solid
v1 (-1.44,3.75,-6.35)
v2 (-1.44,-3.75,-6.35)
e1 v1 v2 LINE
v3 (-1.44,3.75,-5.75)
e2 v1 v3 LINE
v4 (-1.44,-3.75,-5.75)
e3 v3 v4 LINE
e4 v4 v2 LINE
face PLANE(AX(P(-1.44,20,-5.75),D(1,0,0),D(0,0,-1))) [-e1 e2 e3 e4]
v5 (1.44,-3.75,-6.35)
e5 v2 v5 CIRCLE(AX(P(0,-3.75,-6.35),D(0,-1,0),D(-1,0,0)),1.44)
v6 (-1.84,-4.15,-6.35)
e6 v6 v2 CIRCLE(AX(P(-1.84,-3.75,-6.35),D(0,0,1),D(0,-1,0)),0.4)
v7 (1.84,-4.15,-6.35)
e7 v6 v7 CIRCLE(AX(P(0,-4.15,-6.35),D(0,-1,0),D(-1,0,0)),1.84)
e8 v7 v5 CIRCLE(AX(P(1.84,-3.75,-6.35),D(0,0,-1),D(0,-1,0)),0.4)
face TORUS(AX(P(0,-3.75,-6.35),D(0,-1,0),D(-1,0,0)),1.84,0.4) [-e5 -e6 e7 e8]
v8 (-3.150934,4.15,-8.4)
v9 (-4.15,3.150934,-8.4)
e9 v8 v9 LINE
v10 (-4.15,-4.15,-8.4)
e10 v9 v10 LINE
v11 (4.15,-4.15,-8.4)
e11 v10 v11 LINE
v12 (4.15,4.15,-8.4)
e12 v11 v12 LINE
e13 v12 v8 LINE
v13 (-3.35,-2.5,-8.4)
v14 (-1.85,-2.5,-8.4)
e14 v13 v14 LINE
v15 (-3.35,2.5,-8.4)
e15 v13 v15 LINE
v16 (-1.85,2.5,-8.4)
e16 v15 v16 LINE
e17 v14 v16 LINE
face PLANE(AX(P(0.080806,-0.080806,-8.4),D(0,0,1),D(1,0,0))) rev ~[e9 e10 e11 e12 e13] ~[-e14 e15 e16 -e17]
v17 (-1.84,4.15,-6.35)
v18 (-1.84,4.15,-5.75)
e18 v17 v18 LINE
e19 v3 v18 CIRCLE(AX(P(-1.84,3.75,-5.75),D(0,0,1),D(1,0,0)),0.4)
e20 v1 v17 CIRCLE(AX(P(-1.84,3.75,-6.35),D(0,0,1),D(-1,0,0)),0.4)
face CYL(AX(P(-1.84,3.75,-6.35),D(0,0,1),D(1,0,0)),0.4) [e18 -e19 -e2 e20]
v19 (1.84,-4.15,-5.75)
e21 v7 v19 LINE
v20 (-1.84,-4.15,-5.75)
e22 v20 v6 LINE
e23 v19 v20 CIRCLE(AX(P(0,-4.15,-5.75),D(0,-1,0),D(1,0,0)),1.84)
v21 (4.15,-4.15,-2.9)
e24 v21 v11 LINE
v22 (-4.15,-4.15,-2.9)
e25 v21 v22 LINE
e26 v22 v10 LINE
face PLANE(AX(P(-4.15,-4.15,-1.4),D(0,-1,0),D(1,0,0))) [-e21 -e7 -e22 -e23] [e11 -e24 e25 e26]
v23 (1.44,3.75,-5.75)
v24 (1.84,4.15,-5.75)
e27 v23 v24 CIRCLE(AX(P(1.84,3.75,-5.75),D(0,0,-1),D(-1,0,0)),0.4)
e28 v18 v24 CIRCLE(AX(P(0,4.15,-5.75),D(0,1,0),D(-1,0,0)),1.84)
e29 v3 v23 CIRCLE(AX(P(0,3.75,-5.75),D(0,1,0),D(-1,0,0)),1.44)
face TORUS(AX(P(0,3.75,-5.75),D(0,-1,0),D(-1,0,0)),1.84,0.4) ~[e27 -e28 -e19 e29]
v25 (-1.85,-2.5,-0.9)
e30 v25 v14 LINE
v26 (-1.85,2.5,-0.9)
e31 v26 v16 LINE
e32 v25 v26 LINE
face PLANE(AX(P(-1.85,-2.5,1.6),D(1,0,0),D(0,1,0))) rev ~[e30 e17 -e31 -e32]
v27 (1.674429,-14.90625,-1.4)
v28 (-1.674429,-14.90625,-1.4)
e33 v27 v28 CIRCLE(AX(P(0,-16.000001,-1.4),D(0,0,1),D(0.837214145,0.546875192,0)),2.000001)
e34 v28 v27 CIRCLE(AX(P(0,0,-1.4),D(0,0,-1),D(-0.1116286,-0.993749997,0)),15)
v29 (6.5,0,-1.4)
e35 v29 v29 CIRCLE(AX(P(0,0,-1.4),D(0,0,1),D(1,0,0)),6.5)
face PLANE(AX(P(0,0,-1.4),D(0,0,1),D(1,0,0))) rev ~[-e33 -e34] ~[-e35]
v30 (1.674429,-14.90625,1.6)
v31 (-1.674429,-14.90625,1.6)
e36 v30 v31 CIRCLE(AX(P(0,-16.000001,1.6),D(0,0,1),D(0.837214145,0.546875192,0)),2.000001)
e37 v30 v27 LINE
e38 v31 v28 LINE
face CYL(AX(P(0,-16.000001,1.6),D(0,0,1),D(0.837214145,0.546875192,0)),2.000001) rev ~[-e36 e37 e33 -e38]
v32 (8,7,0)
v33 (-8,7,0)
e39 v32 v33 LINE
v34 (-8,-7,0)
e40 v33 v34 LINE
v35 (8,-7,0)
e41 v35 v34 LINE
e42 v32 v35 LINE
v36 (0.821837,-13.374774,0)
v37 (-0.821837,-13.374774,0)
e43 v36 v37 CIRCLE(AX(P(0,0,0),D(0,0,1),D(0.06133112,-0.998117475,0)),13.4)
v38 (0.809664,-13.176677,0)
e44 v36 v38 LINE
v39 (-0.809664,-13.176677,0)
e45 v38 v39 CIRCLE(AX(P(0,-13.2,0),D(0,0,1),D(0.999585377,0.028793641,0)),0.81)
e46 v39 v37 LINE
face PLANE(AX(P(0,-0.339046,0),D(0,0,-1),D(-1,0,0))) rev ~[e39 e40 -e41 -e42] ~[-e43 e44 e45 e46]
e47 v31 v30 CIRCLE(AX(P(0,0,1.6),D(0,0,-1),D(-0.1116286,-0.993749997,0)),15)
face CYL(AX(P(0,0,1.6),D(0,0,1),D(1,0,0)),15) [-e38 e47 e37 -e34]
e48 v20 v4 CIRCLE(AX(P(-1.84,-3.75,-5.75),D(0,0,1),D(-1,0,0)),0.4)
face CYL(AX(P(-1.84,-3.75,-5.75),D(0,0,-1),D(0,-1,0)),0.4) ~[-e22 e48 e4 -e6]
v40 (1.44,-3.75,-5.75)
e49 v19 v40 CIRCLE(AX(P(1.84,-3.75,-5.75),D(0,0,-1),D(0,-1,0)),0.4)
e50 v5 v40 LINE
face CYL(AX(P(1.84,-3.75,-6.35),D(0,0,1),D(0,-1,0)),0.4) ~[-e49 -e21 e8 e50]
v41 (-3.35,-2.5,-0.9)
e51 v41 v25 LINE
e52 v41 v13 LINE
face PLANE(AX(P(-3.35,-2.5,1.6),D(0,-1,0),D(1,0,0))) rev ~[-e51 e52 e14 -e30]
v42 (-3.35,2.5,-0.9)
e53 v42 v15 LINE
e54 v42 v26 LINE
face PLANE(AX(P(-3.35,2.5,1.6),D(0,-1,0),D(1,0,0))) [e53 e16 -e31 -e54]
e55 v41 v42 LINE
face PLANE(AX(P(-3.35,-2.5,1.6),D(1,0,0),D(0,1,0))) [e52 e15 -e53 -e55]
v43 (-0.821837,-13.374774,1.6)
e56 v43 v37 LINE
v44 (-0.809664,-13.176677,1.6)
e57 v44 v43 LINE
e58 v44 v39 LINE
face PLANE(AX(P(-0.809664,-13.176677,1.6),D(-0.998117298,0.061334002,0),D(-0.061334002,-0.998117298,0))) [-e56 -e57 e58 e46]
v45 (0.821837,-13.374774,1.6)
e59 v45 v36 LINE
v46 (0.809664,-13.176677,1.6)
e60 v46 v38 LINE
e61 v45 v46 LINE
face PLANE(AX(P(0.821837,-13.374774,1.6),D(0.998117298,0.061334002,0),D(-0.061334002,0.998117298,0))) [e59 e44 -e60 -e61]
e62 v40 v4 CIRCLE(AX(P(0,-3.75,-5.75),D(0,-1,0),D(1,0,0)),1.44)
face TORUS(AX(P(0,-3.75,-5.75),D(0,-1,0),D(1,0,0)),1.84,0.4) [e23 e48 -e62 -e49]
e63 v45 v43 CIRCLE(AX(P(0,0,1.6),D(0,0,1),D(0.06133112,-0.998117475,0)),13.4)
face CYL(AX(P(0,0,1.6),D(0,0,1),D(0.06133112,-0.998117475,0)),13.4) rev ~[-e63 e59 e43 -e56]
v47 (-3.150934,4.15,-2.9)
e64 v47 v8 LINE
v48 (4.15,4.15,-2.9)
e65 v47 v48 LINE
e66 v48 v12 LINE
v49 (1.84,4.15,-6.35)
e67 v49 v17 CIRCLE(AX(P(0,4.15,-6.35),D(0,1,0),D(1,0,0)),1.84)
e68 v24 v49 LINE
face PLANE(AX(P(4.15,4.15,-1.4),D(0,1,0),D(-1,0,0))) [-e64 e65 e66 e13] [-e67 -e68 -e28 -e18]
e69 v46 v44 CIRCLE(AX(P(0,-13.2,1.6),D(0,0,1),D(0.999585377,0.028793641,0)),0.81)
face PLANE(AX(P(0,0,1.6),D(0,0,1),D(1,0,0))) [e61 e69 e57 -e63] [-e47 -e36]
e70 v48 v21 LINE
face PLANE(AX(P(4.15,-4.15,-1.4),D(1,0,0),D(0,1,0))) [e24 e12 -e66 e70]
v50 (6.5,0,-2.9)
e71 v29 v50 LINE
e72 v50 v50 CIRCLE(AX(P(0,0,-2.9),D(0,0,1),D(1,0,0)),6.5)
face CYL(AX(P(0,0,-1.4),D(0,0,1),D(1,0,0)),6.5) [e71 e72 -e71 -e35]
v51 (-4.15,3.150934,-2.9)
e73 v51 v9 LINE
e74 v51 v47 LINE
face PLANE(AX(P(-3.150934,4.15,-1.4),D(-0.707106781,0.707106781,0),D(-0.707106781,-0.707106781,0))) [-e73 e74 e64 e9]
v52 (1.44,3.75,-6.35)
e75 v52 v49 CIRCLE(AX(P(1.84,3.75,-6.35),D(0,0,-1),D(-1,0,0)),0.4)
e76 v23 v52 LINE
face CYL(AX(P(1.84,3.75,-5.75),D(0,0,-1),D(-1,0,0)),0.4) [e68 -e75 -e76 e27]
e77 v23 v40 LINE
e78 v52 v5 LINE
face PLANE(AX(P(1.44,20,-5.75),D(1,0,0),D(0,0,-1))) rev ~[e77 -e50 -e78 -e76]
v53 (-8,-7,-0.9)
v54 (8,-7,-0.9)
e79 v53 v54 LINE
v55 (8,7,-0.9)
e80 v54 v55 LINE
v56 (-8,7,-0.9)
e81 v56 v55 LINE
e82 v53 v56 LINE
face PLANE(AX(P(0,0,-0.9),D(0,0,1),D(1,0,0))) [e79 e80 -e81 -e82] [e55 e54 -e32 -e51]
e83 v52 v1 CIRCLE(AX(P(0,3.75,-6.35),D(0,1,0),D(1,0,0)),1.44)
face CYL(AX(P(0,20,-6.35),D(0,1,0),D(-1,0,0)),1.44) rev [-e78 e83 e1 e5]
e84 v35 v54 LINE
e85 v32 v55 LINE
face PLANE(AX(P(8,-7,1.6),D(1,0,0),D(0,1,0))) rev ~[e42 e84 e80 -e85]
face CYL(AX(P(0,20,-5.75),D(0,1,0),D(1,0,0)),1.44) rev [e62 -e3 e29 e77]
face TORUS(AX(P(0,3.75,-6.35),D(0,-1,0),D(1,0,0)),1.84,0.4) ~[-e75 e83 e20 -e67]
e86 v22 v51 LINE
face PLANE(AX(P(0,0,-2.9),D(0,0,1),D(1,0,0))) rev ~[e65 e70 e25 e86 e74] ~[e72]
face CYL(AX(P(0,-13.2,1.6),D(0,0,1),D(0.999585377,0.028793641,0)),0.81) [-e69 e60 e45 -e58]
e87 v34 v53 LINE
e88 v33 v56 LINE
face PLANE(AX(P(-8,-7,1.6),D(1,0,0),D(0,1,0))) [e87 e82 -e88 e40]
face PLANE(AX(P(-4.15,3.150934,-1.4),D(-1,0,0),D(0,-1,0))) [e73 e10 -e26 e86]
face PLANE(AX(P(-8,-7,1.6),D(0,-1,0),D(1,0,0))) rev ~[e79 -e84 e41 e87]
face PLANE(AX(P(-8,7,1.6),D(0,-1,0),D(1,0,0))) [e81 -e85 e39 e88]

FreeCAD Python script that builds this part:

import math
import FreeCAD as App
import Part
import Sketcher
Q = App.Units.Quantity


def edges_at(feature, points):
    """Names of the edges that pass closest to the given points."""
    edges = feature.Shape.Edges
    near = lambda p: min(range(len(edges)), key=lambda i: edges[i].distToShape(Part.Vertex(*p))[0])
    return sorted({f"Edge{near(p) + 1}" for p in points})

doc = App.newDocument("Part")
body = doc.addObject("PartDesign::Body", "Body")

# Sketch on XY plane
sketch1 = body.newObject("Sketcher::SketchObject", "Sketch")
sketch1.AttachmentSupport = (doc.getObject("XY_Plane"), [""])
sketch1.MapMode = "FlatFace"
sketch1.addGeometry(Part.Circle(App.Vector(-60, -20, 0), App.Vector(0, 0, 1), 15), False)
sketch1.addConstraint([
    Sketcher.Constraint("Diameter", 0, Q("30 mm")),
    Sketcher.Constraint("DistanceX", 0, 3, -1, 1, Q("60 mm")),
    Sketcher.Constraint("DistanceY", 0, 3, -1, 1, Q("20 mm")),
])
pad1 = body.newObject("PartDesign::Pad", "Pad")
pad1.Profile = sketch1
pad1.Length = 3
pad1.Reversed = True

# Sketch on XY plane
sketch2 = body.newObject("Sketcher::SketchObject", "Sketch001")
sketch2.AttachmentSupport = (doc.getObject("XY_Plane"), [""])
sketch2.MapMode = "FlatFace"
sketch2.addGeometry([
    Part.ArcOfCircle(Part.Circle(App.Vector(-60, -33.2, 0), App.Vector(0, 0, 1), 0.81), math.radians(2), math.radians(178)),
    Part.LineSegment(App.Vector(-59.19, -33.18, 0), App.Vector(-59.18, -33.37, 0)),
    Part.ArcOfCircle(Part.Circle(App.Vector(-60, -20, 0), App.Vector(0, 0, 1), 13.4), math.radians(-86), math.radians(266)),
    Part.LineSegment(App.Vector(-60.82, -33.37, 0), App.Vector(-60.81, -33.18, 0)),
], False)
sketch2.addConstraint([
    Sketcher.Constraint("Coincident", 0, 1, 1, 1),
    Sketcher.Constraint("Coincident", 1, 2, 2, 1),
    Sketcher.Constraint("Coincident", 2, 2, 3, 1),
    Sketcher.Constraint("Coincident", 3, 2, 0, 2),
    Sketcher.Constraint("Horizontal", 1, 2, 2, 2),
    Sketcher.Constraint("Horizontal", 0, 1, 3, 2),
    Sketcher.Constraint("Vertical", 0, 3, 2, 3),
    Sketcher.Constraint("Radius", 2, Q("13.4 mm")),
    Sketcher.Constraint("Radius", 0, Q("0.81 mm")),
    Sketcher.Constraint("DistanceX", 0, 3, -1, 1, Q("60 mm")),
    Sketcher.Constraint("DistanceY", 2, 3, -1, 1, Q("20 mm")),
    Sketcher.Constraint("DistanceY", 0, 3, -1, 1, Q("33.2 mm")),
    Sketcher.Constraint("DistanceX", 2, 2, 0, 1, Q("1.631501 mm")),
    Sketcher.Constraint("Distance", 1, Q("0.198471 mm")),
])
pocket1 = body.newObject("PartDesign::Pocket", "Pocket")
pocket1.Profile = sketch2
pocket1.Length = 1.6

# Sketch on XY plane
sketch3 = body.newObject("Sketcher::SketchObject", "Sketch002")
sketch3.AttachmentSupport = (doc.getObject("XY_Plane"), [""])
sketch3.MapMode = "FlatFace"
sketch3.addGeometry([
    Part.LineSegment(App.Vector(-68, -13, 0), App.Vector(-68, -27, 0)),
    Part.LineSegment(App.Vector(-68, -27, 0), App.Vector(-52, -27, 0)),
    Part.LineSegment(App.Vector(-52, -27, 0), App.Vector(-52, -13, 0)),
    Part.LineSegment(App.Vector(-52, -13, 0), App.Vector(-68, -13, 0)),
], False)
sketch3.addConstraint([
    Sketcher.Constraint("Coincident", 0, 2, 1, 1),
    Sketcher.Constraint("Coincident", 1, 2, 2, 1),
    Sketcher.Constraint("Coincident", 2, 2, 3, 1),
    Sketcher.Constraint("Coincident", 3, 2, 0, 1),
    Sketcher.Constraint("Vertical", 0),
    Sketcher.Constraint("Horizontal", 1),
    Sketcher.Constraint("Vertical", 2),
    Sketcher.Constraint("Horizontal", 3),
    Sketcher.Constraint("DistanceX", 1, 1, 1, 2, Q("16 mm")),
    Sketcher.Constraint("DistanceY", 0, 2, 0, 1, Q("14 mm")),
    Sketcher.Constraint("DistanceX", 0, 2, -1, 1, Q("68 mm")),
    Sketcher.Constraint("DistanceY", 0, 2, -1, 1, Q("27 mm")),
])
pocket2 = body.newObject("PartDesign::Pocket", "Pocket001")
pocket2.Profile = sketch3
pocket2.Length = 2.5

# Sketch on XY plane
sketch4 = body.newObject("Sketcher::SketchObject", "Sketch003")
sketch4.AttachmentSupport = (doc.getObject("XY_Plane"), [""])
sketch4.MapMode = "FlatFace"
sketch4.AttachmentOffset = App.Placement(App.Vector(0, 0, -3), App.Rotation())
sketch4.addGeometry([
    Part.LineSegment(App.Vector(-64.2, -24.1, 0), App.Vector(-55.9, -24.1, 0)),  # 0
    Part.LineSegment(App.Vector(-55.9, -24.1, 0), App.Vector(-55.9, -15.8, 0)),  # 1
    Part.LineSegment(App.Vector(-55.9, -15.8, 0), App.Vector(-63.2, -15.8, 0)),  # 2
    Part.LineSegment(App.Vector(-63.2, -15.8, 0), App.Vector(-64.2, -16.8, 0)),  # 3
    Part.LineSegment(App.Vector(-64.2, -16.8, 0), App.Vector(-64.2, -24.1, 0)),  # 4
], False)
sketch4.addConstraint([
    Sketcher.Constraint("Coincident", 0, 2, 1, 1),
    Sketcher.Constraint("Coincident", 1, 2, 2, 1),
    Sketcher.Constraint("Coincident", 2, 2, 3, 1),
    Sketcher.Constraint("Coincident", 3, 2, 4, 1),
    Sketcher.Constraint("Coincident", 4, 2, 0, 1),
    Sketcher.Constraint("Horizontal", 0),
    Sketcher.Constraint("Vertical", 1),
    Sketcher.Constraint("Horizontal", 2),
    Sketcher.Constraint("Vertical", 4),
    Sketcher.Constraint("Equal", 0, 1),
    Sketcher.Constraint("Equal", 2, 4),
    Sketcher.Constraint("DistanceX", 0, 1, 0, 2, Q("8.3 mm")),
    Sketcher.Constraint("DistanceX", 0, 2, -1, 1, Q("55.85 mm")),
    Sketcher.Constraint("DistanceY", 0, 2, -1, 1, Q("24.15 mm")),
    Sketcher.Constraint("DistanceX", 2, 2, 2, 1, Q("7.300934 mm")),
])
pad2 = body.newObject("PartDesign::Pad", "Pad001")
pad2.Profile = sketch4
pad2.Length = 7
pad2.Reversed = True

# Sketch on XY plane
sketch5 = body.newObject("Sketcher::SketchObject", "Sketch004")
sketch5.AttachmentSupport = (doc.getObject("XY_Plane"), [""])
sketch5.MapMode = "FlatFace"
sketch5.AttachmentOffset = App.Placement(App.Vector(0, 0, -3), App.Rotation())
sketch5.addGeometry(Part.Circle(App.Vector(-60, -20, 0), App.Vector(0, 0, 1), 6), False)
sketch5.addConstraint([
    Sketcher.Constraint("Diameter", 0, Q("13 mm")),
    Sketcher.Constraint("DistanceX", 0, 3, -1, 1, Q("60 mm")),
    Sketcher.Constraint("DistanceY", 0, 3, -1, 1, Q("20 mm")),
])
pad3 = body.newObject("PartDesign::Pad", "Pad002")
pad3.Profile = sketch5
pad3.Length = 1.5
pad3.Reversed = True

# Sketch on XY plane
sketch6 = body.newObject("Sketcher::SketchObject", "Sketch005")
sketch6.AttachmentSupport = (doc.getObject("XY_Plane"), [""])
sketch6.MapMode = "FlatFace"
sketch6.addGeometry([
    Part.LineSegment(App.Vector(-63.4, -17.5, 0), App.Vector(-63.4, -22.5, 0)),
    Part.LineSegment(App.Vector(-63.4, -22.5, 0), App.Vector(-61.9, -22.5, 0)),
    Part.LineSegment(App.Vector(-61.9, -22.5, 0), App.Vector(-61.9, -17.5, 0)),
    Part.LineSegment(App.Vector(-61.9, -17.5, 0), App.Vector(-63.4, -17.5, 0)),
], False)
sketch6.addConstraint([
    Sketcher.Constraint("Coincident", 0, 2, 1, 1),
    Sketcher.Constraint("Coincident", 1, 2, 2, 1),
    Sketcher.Constraint("Coincident", 2, 2, 3, 1),
    Sketcher.Constraint("Coincident", 3, 2, 0, 1),
    Sketcher.Constraint("Vertical", 0),
    Sketcher.Constraint("Horizontal", 1),
    Sketcher.Constraint("Vertical", 2),
    Sketcher.Constraint("Horizontal", 3),
    Sketcher.Constraint("DistanceY", 0, 2, 0, 1, Q("5 mm")),
    Sketcher.Constraint("DistanceX", 1, 1, 1, 2, Q("1.5 mm")),
    Sketcher.Constraint("DistanceY", 0, 2, -1, 1, Q("22.5 mm")),
    Sketcher.Constraint("DistanceX", 0, 2, -1, 1, Q("63.35 mm")),
])
pocket3 = body.newObject("PartDesign::Pocket", "Pocket002")
pocket3.Profile = sketch6
pocket3.Type = "ThroughAll"

# Sketch on XY plane
sketch7 = body.newObject("Sketcher::SketchObject", "Sketch006")
sketch7.AttachmentSupport = (doc.getObject("XY_Plane"), [""])
sketch7.MapMode = "FlatFace"
sketch7.addGeometry([
    Part.ArcOfCircle(Part.Circle(App.Vector(-60, -36, 0), App.Vector(0, 0, 1), 2), math.radians(33), math.radians(147)),
    Part.ArcOfCircle(Part.Circle(App.Vector(-60, -20, 0), App.Vector(0, 0, 1), 15), math.radians(-96.41), math.radians(-83.59)),
], False)
sketch7.addConstraint([
    Sketcher.Constraint("Coincident", 0, 1, 1, 2),
    Sketcher.Constraint("Coincident", 1, 1, 0, 2),
    Sketcher.Constraint("Horizontal", 0, 1, 1, 1),
    Sketcher.Constraint("Radius", 0, Q("2.000001 mm")),
    Sketcher.Constraint("DistanceX", 0, 3, -1, 1, Q("60 mm")),
    Sketcher.Constraint("DistanceY", 0, 3, -1, 1, Q("36.000001 mm")),
    Sketcher.Constraint("Radius", 1, Q("15.000008 mm")),
    Sketcher.Constraint("DistanceY", 1, 3, -1, 1, Q("19.999992 mm")),
])
pocket4 = body.newObject("PartDesign::Pocket", "Pocket003")
pocket4.Profile = sketch7
pocket4.Type = "ThroughAll"

# Sketch on XZ plane
sketch8 = body.newObject("Sketcher::SketchObject", "Sketch007")
sketch8.AttachmentSupport = (doc.getObject("XZ_Plane"), [""])
sketch8.MapMode = "FlatFace"
sketch8.addGeometry([
    Part.LineSegment(App.Vector(-58.6, -8, 0), App.Vector(-58.6, -7.3, 0)),
    Part.ArcOfCircle(Part.Circle(App.Vector(-60, -7.3, 0), App.Vector(0, 0, 1), 1.4), math.radians(0), math.radians(180)),
    Part.LineSegment(App.Vector(-61.4, -7.3, 0), App.Vector(-61.4, -8, 0)),
    Part.ArcOfCircle(Part.Circle(App.Vector(-60, -8, 0), App.Vector(0, 0, 1), 1.4), math.radians(180), math.radians(360)),
], False)
sketch8.addConstraint([
    Sketcher.Constraint("Tangent", 0, 2, 1, 1),
    Sketcher.Constraint("Tangent", 1, 2, 2, 1),
    Sketcher.Constraint("Tangent", 2, 2, 3, 1),
    Sketcher.Constraint("Tangent", 3, 2, 0, 1),
    Sketcher.Constraint("Vertical", 0),
    Sketcher.Constraint("Vertical", 2),
    Sketcher.Constraint("Radius", 1, Q("1.44 mm")),
    Sketcher.Constraint("DistanceY", 0, 1, 0, 2, Q("0.6 mm")),
    Sketcher.Constraint("DistanceX", 1, 3, -1, 1, Q("60 mm")),
    Sketcher.Constraint("DistanceY", 1, 3, -1, 1, Q("7.35 mm")),
])
pocket5 = body.newObject("PartDesign::Pocket", "Pocket004")
pocket5.Profile = sketch8
pocket5.Type = "ThroughAll"
pocket5.Reversed = True
doc.recompute()

fillet = body.newObject("PartDesign::Fillet", "Fillet")
fillet.Base = (pocket5, edges_at(pocket5, [(-58.56, -24.15, -7.65)]))
fillet.Radius = 0.4
doc.recompute()

fillet2 = body.newObject("PartDesign::Fillet", "Fillet001")
fillet2.Base = (fillet, edges_at(fillet, [(-58.56, -15.85, -7.65)]))
fillet2.Radius = 0.4
body2 = doc.addObject("PartDesign::Body", "Body001")
doc.recompute()

body.Placement = App.Placement(App.Vector(60, 20, 1.6), App.Rotation(App.Vector(0, 0, 1), 0))
boolean = body2.newObject("PartDesign::Boolean", "Boolean")
boolean.Type = "Fuse"
boolean.addObjects([body])

doc.recompute()
